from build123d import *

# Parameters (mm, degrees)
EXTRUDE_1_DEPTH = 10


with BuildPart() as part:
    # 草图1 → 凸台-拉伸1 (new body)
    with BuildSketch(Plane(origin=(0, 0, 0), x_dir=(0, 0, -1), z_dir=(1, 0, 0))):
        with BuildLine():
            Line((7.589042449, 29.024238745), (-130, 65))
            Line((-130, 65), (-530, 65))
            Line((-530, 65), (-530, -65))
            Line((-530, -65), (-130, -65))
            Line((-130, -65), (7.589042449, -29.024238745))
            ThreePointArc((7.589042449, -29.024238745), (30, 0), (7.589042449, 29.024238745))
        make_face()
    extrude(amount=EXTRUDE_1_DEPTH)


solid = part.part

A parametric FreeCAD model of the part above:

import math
import FreeCAD as App
import Part
import Sketcher
from FreeCAD import Vector
Q = App.Units.Quantity

doc = App.newDocument("Part")
params = doc.addObject("Spreadsheet::Sheet", "Params")
for row, (alias, value) in enumerate([
    ("sketch1_radius", "30 mm"),
    ("sketch1_width", "130 mm"),
    ("sketch1_height", "400 mm"),
    ("pad1_length", "10 mm"),
], start=1):
    params.set(f"A{row}", alias)
    params.set(f"B{row}", "=" + value)
    params.setAlias(f"B{row}", alias)

body = doc.addObject("PartDesign::Body", "Body")

sketch1 = body.newObject("Sketcher::SketchObject", "Sketch")
sketch1.AttachmentSupport = (doc.getObject("YZ_Plane"), [""])
sketch1.MapMode = "FlatFace"
sketch1.addGeometry(Part.LineSegment(Vector(29, -8, 0), Vector(65, 130, 0)), False)
sketch1.addGeometry(Part.LineSegment(Vector(65, 130, 0), Vector(65, 530, 0)), False)
sketch1.addGeometry(Part.LineSegment(Vector(65, 530, 0), Vector(-65, 530, 0)), False)
sketch1.addGeometry(Part.LineSegment(Vector(-65, 530, 0), Vector(-65, 130, 0)), False)
sketch1.addGeometry(Part.LineSegment(Vector(-65, 130, 0), Vector(-29, -8, 0)), False)
sketch1.addGeometry(Part.ArcOfCircle(Part.Circle(Vector(0, 0, 0), Vector(0, 0, 1), 30), math.radians(-165), math.radians(-15)), False)
sketch1.addConstraint(Sketcher.Constraint("Coincident", 0, 2, 1, 1))
sketch1.addConstraint(Sketcher.Constraint("Coincident", 1, 2, 2, 1))
sketch1.addConstraint(Sketcher.Constraint("Coincident", 2, 2, 3, 1))
sketch1.addConstraint(Sketcher.Constraint("Coincident", 3, 2, 4, 1))
sketch1.addConstraint(Sketcher.Constraint("Tangent", 4, 2, 5, 1))
sketch1.addConstraint(Sketcher.Constraint("Tangent", 5, 2, 0, 1))
sketch1.addConstraint(Sketcher.Constraint("Vertical", 1))
sketch1.addConstraint(Sketcher.Constraint("Horizontal", 2))
sketch1.addConstraint(Sketcher.Constraint("Vertical", 3))
sketch1.addConstraint(Sketcher.Constraint("Coincident", 5, 3, -1, 1))
sketch1.addConstraint(Sketcher.Constraint("Symmetric", 0, 2, 3, 2, -2))
sketch1.addConstraint(Sketcher.Constraint("Radius", 5, Q("30 mm")))
sketch1.addConstraint(Sketcher.Constraint("DistanceX", 2, 2, 2, 1, Q("130 mm")))
sketch1.addConstraint(Sketcher.Constraint("DistanceY", 1, 1, 1, 2, Q("400 mm")))
sketch1.addConstraint(Sketcher.Constraint("DistanceY", -1, 1, 0, 2, Q("130 mm")))
sketch1.setExpression("Constraints[11]", "Params.sketch1_radius")
sketch1.setExpression("Constraints[12]", "Params.sketch1_width")
sketch1.setExpression("Constraints[13]", "Params.sketch1_height")
pad1 = body.newObject("PartDesign::Pad", "Pad")
pad1.Profile = sketch1
pad1.setExpression("Length", "Params.pad1_length")

doc.recompute()
